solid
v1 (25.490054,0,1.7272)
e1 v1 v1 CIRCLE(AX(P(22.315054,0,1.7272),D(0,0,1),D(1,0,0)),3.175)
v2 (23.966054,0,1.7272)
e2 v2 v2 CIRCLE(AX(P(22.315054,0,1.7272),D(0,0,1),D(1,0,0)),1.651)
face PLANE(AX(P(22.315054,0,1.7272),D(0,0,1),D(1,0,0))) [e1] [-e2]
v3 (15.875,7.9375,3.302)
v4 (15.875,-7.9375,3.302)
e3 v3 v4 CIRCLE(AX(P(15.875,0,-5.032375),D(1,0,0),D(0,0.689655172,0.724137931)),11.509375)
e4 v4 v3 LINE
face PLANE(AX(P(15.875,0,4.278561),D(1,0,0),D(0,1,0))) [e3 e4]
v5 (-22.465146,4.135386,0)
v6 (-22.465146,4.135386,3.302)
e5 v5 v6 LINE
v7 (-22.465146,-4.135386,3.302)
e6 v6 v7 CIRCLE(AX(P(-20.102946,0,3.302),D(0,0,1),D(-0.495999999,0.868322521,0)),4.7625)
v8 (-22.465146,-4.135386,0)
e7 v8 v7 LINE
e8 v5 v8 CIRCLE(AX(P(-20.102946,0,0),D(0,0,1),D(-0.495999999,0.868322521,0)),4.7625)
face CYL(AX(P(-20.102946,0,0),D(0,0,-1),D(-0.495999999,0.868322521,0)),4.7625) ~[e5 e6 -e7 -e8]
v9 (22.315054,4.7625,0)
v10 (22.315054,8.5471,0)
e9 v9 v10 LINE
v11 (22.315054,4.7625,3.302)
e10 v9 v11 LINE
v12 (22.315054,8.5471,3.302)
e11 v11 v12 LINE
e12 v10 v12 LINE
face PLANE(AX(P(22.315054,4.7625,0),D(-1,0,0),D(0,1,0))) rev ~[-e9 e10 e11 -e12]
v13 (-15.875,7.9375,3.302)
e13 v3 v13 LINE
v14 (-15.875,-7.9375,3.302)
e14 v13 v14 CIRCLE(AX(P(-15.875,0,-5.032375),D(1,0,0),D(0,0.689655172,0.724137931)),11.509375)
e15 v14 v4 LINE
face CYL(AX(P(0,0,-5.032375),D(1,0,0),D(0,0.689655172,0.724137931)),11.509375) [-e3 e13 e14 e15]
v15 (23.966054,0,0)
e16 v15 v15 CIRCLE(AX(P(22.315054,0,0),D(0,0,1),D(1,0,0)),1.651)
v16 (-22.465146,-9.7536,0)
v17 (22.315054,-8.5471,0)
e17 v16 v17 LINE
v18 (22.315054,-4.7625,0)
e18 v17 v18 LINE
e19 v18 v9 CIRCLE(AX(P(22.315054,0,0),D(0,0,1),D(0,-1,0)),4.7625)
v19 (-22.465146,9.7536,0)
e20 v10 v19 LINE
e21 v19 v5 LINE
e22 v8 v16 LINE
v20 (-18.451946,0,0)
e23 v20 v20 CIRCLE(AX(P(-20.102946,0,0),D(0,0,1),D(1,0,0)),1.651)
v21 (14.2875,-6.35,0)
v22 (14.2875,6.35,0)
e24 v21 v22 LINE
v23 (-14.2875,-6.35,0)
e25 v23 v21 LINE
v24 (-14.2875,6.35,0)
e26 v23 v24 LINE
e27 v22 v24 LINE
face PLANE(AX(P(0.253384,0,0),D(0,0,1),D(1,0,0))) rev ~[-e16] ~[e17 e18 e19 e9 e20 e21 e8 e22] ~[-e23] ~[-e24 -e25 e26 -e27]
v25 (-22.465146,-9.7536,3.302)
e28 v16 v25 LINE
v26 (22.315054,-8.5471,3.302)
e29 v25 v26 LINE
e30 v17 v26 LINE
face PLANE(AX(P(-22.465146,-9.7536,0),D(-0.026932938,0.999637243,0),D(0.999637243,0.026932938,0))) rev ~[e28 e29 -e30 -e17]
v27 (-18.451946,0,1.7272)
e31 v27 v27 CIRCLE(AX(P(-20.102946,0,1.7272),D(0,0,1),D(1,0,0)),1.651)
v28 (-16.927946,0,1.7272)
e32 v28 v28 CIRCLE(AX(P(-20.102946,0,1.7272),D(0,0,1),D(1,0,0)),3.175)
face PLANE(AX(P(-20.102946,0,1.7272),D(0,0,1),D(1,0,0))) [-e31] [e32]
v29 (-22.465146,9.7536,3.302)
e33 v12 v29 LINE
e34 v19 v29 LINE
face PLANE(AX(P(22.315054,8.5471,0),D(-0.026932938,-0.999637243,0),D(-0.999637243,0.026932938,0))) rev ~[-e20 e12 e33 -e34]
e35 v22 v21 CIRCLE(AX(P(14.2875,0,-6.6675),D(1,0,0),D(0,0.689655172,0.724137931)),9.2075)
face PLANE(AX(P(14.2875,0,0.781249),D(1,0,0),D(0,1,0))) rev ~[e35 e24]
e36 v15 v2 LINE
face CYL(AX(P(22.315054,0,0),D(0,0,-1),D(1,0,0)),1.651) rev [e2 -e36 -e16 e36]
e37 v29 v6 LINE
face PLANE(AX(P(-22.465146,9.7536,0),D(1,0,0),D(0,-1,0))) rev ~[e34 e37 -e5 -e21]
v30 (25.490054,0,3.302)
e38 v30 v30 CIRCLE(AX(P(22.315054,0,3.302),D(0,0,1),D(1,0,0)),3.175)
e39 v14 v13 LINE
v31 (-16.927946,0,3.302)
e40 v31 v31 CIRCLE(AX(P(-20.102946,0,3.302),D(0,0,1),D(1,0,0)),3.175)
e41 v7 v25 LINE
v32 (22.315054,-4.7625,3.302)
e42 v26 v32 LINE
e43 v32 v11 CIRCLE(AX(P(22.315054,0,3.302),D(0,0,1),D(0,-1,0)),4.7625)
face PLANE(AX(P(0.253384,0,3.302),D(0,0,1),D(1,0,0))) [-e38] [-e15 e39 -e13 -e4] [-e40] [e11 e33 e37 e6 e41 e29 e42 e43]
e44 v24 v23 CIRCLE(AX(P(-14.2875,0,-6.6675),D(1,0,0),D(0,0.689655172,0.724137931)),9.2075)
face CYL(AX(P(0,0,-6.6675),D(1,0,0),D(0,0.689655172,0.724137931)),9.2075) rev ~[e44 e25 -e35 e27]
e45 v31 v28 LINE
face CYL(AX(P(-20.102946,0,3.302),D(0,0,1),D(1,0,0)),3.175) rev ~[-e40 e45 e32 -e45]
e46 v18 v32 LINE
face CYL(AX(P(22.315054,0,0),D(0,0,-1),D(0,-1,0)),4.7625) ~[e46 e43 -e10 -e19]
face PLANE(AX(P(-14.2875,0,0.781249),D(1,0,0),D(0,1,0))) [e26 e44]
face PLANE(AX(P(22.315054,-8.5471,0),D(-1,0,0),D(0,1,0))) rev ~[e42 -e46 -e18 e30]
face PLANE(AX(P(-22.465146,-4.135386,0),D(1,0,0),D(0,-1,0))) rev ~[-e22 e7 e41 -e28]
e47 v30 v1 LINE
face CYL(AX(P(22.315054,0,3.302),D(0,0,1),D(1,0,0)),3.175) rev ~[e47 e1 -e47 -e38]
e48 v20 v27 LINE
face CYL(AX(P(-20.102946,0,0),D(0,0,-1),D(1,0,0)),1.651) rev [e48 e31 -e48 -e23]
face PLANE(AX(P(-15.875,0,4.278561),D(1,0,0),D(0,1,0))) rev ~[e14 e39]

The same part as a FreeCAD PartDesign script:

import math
import FreeCAD as App
import Part
import Sketcher
Q = App.Units.Quantity

doc = App.newDocument("Part")
body = doc.addObject("PartDesign::Body", "Body")

# Sketch on XY plane
sketch1 = body.newObject("Sketcher::SketchObject", "Sketch")
sketch1.AttachmentSupport = (doc.getObject("XY_Plane"), [""])
sketch1.MapMode = "FlatFace"
sketch1.addGeometry([
    Part.ArcOfCircle(Part.Circle(App.Vector(22.3, 0, 0), App.Vector(0, 0, 1), 4.8), math.radians(-90), math.radians(90)),  # 0
    Part.LineSegment(App.Vector(22.3, 4.8, 0), App.Vector(22.3, 8.5, 0)),  # 1
    Part.LineSegment(App.Vector(22.3, 8.5, 0), App.Vector(-22.5, 9.8, 0)),  # 2
    Part.LineSegment(App.Vector(-22.5, 9.8, 0), App.Vector(-22.5, 4.1, 0)),  # 3
    Part.ArcOfCircle(Part.Circle(App.Vector(-20.1, 0, 0), App.Vector(0, 0, 1), 4.8), math.radians(120), math.radians(240)),  # 4
    Part.LineSegment(App.Vector(-22.5, -4.1, 0), App.Vector(-22.5, -9.8, 0)),  # 5
    Part.LineSegment(App.Vector(-22.5, -9.8, 0), App.Vector(22.3, -8.5, 0)),  # 6
    Part.LineSegment(App.Vector(22.3, -8.5, 0), App.Vector(22.3, -4.8, 0)),  # 7
    Part.Circle(App.Vector(-20.1, 0, 0), App.Vector(0, 0, 1), 1.7),  # 8
    Part.Circle(App.Vector(22.3, 0, 0), App.Vector(0, 0, 1), 1.7),  # 9
], False)
sketch1.addConstraint([
    Sketcher.Constraint("Coincident", 0, 2, 1, 1),
    Sketcher.Constraint("Coincident", 1, 2, 2, 1),
    Sketcher.Constraint("Coincident", 2, 2, 3, 1),
    Sketcher.Constraint("Coincident", 3, 2, 4, 1),
    Sketcher.Constraint("Coincident", 4, 2, 5, 1),
    Sketcher.Constraint("Coincident", 5, 2, 6, 1),
    Sketcher.Constraint("Coincident", 6, 2, 7, 1),
    Sketcher.Constraint("Coincident", 7, 2, 0, 1),
    Sketcher.Constraint("Vertical", 1),
    Sketcher.Constraint("Vertical", 3),
    Sketcher.Constraint("Vertical", 5),
    Sketcher.Constraint("Vertical", 7),
    Sketcher.Constraint("Coincident", 8, 3, 4, 3),
    Sketcher.Constraint("Coincident", 9, 3, 0, 3),
    Sketcher.Constraint("Equal", 0, 4),
    Sketcher.Constraint("Equal", 8, 9),
    Sketcher.Constraint("Symmetric", 3, 2, 4, 2, -1),
    Sketcher.Constraint("Symmetric", 1, 2, 6, 2, -1),
    Sketcher.Constraint("PointOnObject", 0, 3, -1),
    Sketcher.Constraint("Vertical", 9, 3, 0, 2),
    Sketcher.Constraint("Equal", 3, 5),
    Sketcher.Constraint("Diameter", 8, Q("0.13 in")),
    Sketcher.Constraint("Radius", 0, Q("0.1875 in")),
    Sketcher.Constraint("DistanceY", 1, 1, 1, 2, Q("0.149 in")),
    Sketcher.Constraint("DistanceX", 4, 3, 0, 3, Q("1.67 in")),
    Sketcher.Constraint("DistanceY", -1, 1, 2, 2, Q("0.384 in")),
    Sketcher.Constraint("DistanceX", 2, 2, 4, 3, Q("0.093 in")),
    Sketcher.Constraint("DistanceX", -1, 1, 0, 3, 22.315054),
])
pad1 = body.newObject("PartDesign::Pad", "Pad")
pad1.Profile = sketch1
pad1.Length = Q("0.13 in")

# Sketch on XY plane
sketch2 = body.newObject("Sketcher::SketchObject", "Sketch001")
sketch2.AttachmentSupport = (doc.getObject("XY_Plane"), [""])
sketch2.MapMode = "FlatFace"
sketch2.AttachmentOffset = App.Placement(App.Vector(0, 0, 0.13 * 25.4), App.Rotation())
sketch2.addGeometry([
    Part.Circle(App.Vector(-20.1, 0, 0), App.Vector(0, 0, 1), 3.2),
    Part.Circle(App.Vector(-20.1, 0, 0), App.Vector(0, 0, 1), 1.7),
    Part.Circle(App.Vector(22.3, 0, 0), App.Vector(0, 0, 1), 3.2),
    Part.Circle(App.Vector(22.3, 0, 0), App.Vector(0, 0, 1), 1.7),
], False)
sketch2.addConstraint([
    Sketcher.Constraint("Coincident", 1, 3, 0, 3),
    Sketcher.Constraint("Coincident", 3, 3, 2, 3),
    Sketcher.Constraint("Equal", 0, 2),
    Sketcher.Constraint("Equal", 1, 3),
    Sketcher.Constraint("PointOnObject", 0, 3, -1),
    Sketcher.Constraint("PointOnObject", 2, 3, -1),
    Sketcher.Constraint("Diameter", 0, Q("0.25 in")),
    Sketcher.Constraint("Diameter", 1, Q("0.13 in")),
    Sketcher.Constraint("DistanceX", 0, 3, 2, 3, Q("1.67 in")),
    Sketcher.Constraint("DistanceX", 0, 3, -1, 1, 20.102946),
])
pocket1 = body.newObject("PartDesign::Pocket", "Pocket")
pocket1.Profile = sketch2
pocket1.Length = Q("0.062 in")

# Sketch on YZ plane
sketch3 = body.newObject("Sketcher::SketchObject", "Sketch002")
sketch3.AttachmentSupport = (doc.getObject("YZ_Plane"), [""])
sketch3.MapMode = "FlatFace"
sketch3.addGeometry([
    Part.ArcOfCircle(Part.Circle(App.Vector(0, -5, 0), App.Vector(0, 0, 1), 12), math.radians(46), math.radians(134)),
    Part.LineSegment(App.Vector(-8, 3, 0), App.Vector(8, 3, 0)),
], False)
sketch3.addConstraint([
    Sketcher.Constraint("Coincident", 0, 1, 1, 2),
    Sketcher.Constraint("Coincident", 1, 1, 0, 2),
    Sketcher.Constraint("Horizontal", 1),
    Sketcher.Constraint("PointOnObject", 0, 3, -2),
    Sketcher.Constraint("Radius", 0, Q("0.453125 in")),
    Sketcher.Constraint("DistanceX", 1, 1, 1, 2, Q("0.625 in")),
    Sketcher.Constraint("DistanceY", -1, 1, 0, 1, Q("0.13 in")),
])
pad2 = body.newObject("PartDesign::Pad", "Pad001")
pad2.Profile = sketch3
pad2.Length = Q("1.25 in")
pad2.Midplane = True

# Sketch on YZ plane
sketch4 = body.newObject("Sketcher::SketchObject", "Sketch003")
sketch4.AttachmentSupport = (doc.getObject("YZ_Plane"), [""])
sketch4.MapMode = "FlatFace"
sketch4.addGeometry([
    Part.ArcOfCircle(Part.Circle(App.Vector(0, -7, 0), App.Vector(0, 0, 1), 9), math.radians(46), math.radians(134)),
    Part.LineSegment(App.Vector(-6, 0, 0), App.Vector(6, 0, 0)),
], False)
sketch4.addConstraint([
    Sketcher.Constraint("Coincident", 0, 1, 1, 2),
    Sketcher.Constraint("Coincident", 1, 1, 0, 2),
    Sketcher.Constraint("Horizontal", 1),
    Sketcher.Constraint("Symmetric", 0, 1, 1, 1, -1, 1),
    Sketcher.Constraint("DistanceX", 1, 1, 1, 2, Q("0.5 in")),
    Sketcher.Constraint("Radius", 0, Q("0.3625 in")),
])
pocket2 = body.newObject("PartDesign::Pocket", "Pocket001")
pocket2.Profile = sketch4
pocket2.Length = Q("1.125 in")
pocket2.Midplane = True

doc.recompute()
